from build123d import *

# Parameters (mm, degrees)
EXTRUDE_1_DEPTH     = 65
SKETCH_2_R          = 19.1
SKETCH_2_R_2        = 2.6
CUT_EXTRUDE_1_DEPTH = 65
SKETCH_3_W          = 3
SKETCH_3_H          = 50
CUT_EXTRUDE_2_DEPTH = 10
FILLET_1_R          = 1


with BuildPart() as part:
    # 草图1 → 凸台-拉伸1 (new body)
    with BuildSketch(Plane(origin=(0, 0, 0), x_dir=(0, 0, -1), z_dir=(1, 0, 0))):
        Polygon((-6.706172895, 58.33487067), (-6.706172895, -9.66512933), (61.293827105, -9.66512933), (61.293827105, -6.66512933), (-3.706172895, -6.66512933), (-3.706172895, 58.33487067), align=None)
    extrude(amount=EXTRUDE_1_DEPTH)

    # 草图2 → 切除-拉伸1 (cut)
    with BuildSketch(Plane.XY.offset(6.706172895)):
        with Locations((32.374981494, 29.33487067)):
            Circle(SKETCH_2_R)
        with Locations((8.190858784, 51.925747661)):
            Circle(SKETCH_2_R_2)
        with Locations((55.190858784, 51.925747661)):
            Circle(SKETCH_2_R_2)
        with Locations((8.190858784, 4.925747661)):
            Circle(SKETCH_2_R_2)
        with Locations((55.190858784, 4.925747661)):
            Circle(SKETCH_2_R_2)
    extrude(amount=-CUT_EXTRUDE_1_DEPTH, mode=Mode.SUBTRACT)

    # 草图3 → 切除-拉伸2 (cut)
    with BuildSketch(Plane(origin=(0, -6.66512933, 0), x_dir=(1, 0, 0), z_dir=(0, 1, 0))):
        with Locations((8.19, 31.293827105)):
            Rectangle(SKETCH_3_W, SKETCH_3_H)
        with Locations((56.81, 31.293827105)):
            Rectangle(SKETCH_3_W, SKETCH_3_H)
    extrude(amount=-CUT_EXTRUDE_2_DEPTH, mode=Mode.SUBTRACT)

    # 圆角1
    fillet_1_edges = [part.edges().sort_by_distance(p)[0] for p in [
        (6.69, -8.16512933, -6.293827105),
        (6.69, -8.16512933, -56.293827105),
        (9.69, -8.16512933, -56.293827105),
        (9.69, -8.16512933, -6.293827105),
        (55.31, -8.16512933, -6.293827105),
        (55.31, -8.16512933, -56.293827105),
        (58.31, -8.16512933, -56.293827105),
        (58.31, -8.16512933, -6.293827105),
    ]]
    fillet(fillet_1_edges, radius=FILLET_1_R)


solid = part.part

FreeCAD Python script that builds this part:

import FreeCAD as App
import Part
import Sketcher
from FreeCAD import Vector
Q = App.Units.Quantity


def edges_at(feature, points):
    """Names of the edges that pass closest to the given points."""
    edges = feature.Shape.Edges
    near = lambda p: min(range(len(edges)), key=lambda i: edges[i].distToShape(Part.Vertex(*p))[0])
    return sorted({f"Edge{near(p) + 1}" for p in points})

doc = App.newDocument("Part")
body = doc.addObject("PartDesign::Body", "Body")

sketch1 = body.newObject("Sketcher::SketchObject", "Sketch")
sketch1.AttachmentSupport = (doc.getObject("YZ_Plane"), [""])
sketch1.MapMode = "FlatFace"
sketch1.addGeometry(Part.LineSegment(Vector(58.3, 6.7, 0), Vector(-9.7, 6.7, 0)), False)
sketch1.addGeometry(Part.LineSegment(Vector(-9.7, 6.7, 0), Vector(-9.7, -61.3, 0)), False)
sketch1.addGeometry(Part.LineSegment(Vector(-9.7, -61.3, 0), Vector(-6.7, -61.3, 0)), False)
sketch1.addGeometry(Part.LineSegment(Vector(-6.7, -61.3, 0), Vector(-6.7, 3.7, 0)), False)
sketch1.addGeometry(Part.LineSegment(Vector(-6.7, 3.7, 0), Vector(58.3, 3.7, 0)), False)
sketch1.addGeometry(Part.LineSegment(Vector(58.3, 3.7, 0), Vector(58.3, 6.7, 0)), False)
sketch1.addConstraint(Sketcher.Constraint("Coincident", 0, 2, 1, 1))
sketch1.addConstraint(Sketcher.Constraint("Coincident", 1, 2, 2, 1))
sketch1.addConstraint(Sketcher.Constraint("Coincident", 2, 2, 3, 1))
sketch1.addConstraint(Sketcher.Constraint("Coincident", 3, 2, 4, 1))
sketch1.addConstraint(Sketcher.Constraint("Coincident", 4, 2, 5, 1))
sketch1.addConstraint(Sketcher.Constraint("Coincident", 5, 2, 0, 1))
sketch1.addConstraint(Sketcher.Constraint("Horizontal", 0))
sketch1.addConstraint(Sketcher.Constraint("Vertical", 1))
sketch1.addConstraint(Sketcher.Constraint("Horizontal", 2))
sketch1.addConstraint(Sketcher.Constraint("Vertical", 3))
sketch1.addConstraint(Sketcher.Constraint("Horizontal", 4))
sketch1.addConstraint(Sketcher.Constraint("Vertical", 5))
sketch1.addConstraint(Sketcher.Constraint("Equal", 0, 1))
sketch1.addConstraint(Sketcher.Constraint("Equal", 4, 3))
sketch1.addConstraint(Sketcher.Constraint("DistanceX", 0, 2, 0, 1, Q("68 mm")))
sketch1.addConstraint(Sketcher.Constraint("DistanceX", 2, 1, 2, 2, Q("3 mm")))
sketch1.addConstraint(Sketcher.Constraint("DistanceX", 0, 2, -1, 1, Q("9.665129 mm")))
sketch1.addConstraint(Sketcher.Constraint("DistanceY", -1, 1, 0, 2, Q("6.706173 mm")))
pad1 = body.newObject("PartDesign::Pad", "Pad")
pad1.Profile = sketch1
pad1.Length = 65

sketch2 = body.newObject("Sketcher::SketchObject", "Sketch001")
sketch2.AttachmentSupport = (doc.getObject("XY_Plane"), [""])
sketch2.MapMode = "FlatFace"
sketch2.AttachmentOffset = App.Placement(Vector(0, 0, 6.706173), App.Rotation())
sketch2.addGeometry(Part.Circle(Vector(32.4, 29.3, 0), Vector(0, 0, 1), 19.1), False)
sketch2.addGeometry(Part.Circle(Vector(8.2, 51.9, 0), Vector(0, 0, 1), 2.6), False)
sketch2.addGeometry(Part.Circle(Vector(55.2, 51.9, 0), Vector(0, 0, 1), 2.6), False)
sketch2.addGeometry(Part.Circle(Vector(8.2, 4.9, 0), Vector(0, 0, 1), 2.6), False)
sketch2.addGeometry(Part.Circle(Vector(55.2, 4.9, 0), Vector(0, 0, 1), 2.6), False)
sketch2.addConstraint(Sketcher.Constraint("Equal", 1, 2))
sketch2.addConstraint(Sketcher.Constraint("Equal", 2, 3))
sketch2.addConstraint(Sketcher.Constraint("Equal", 3, 4))
sketch2.addConstraint(Sketcher.Constraint("Horizontal", 1, 3, 2, 3))
sketch2.addConstraint(Sketcher.Constraint("Horizontal", 3, 3, 4, 3))
sketch2.addConstraint(Sketcher.Constraint("Vertical", 1, 3, 3, 3))
sketch2.addConstraint(Sketcher.Constraint("Vertical", 2, 3, 4, 3))
sketch2.addConstraint(Sketcher.Constraint("Diameter", 0, Q("38.2 mm")))
sketch2.addConstraint(Sketcher.Constraint("Diameter", 1, Q("5.2 mm")))
sketch2.addConstraint(Sketcher.Constraint("DistanceX", 1, 3, 2, 3, Q("47 mm")))
sketch2.addConstraint(Sketcher.Constraint("DistanceY", 3, 3, 1, 3, Q("47 mm")))
sketch2.addConstraint(Sketcher.Constraint("DistanceX", -1, 1, 0, 3, Q("32.374981 mm")))
sketch2.addConstraint(Sketcher.Constraint("DistanceY", -1, 1, 0, 3, Q("29.334871 mm")))
sketch2.addConstraint(Sketcher.Constraint("DistanceX", -1, 1, 1, 3, Q("8.190859 mm")))
sketch2.addConstraint(Sketcher.Constraint("DistanceY", -1, 1, 1, 3, Q("51.925748 mm")))
pocket1 = body.newObject("PartDesign::Pocket", "Pocket")
pocket1.Profile = sketch2
pocket1.Length = 65

sketch3 = body.newObject("Sketcher::SketchObject", "Sketch002")
sketch3.AttachmentSupport = (doc.getObject("XZ_Plane"), [""])
sketch3.MapMode = "FlatFace"
sketch3.AttachmentOffset = App.Placement(Vector(0, 0, 6.665129), App.Rotation())
sketch3.addGeometry(Part.LineSegment(Vector(6.7, -56.3, 0), Vector(6.7, -6.3, 0)), False)
sketch3.addGeometry(Part.LineSegment(Vector(6.7, -6.3, 0), Vector(9.7, -6.3, 0)), False)
sketch3.addGeometry(Part.LineSegment(Vector(9.7, -6.3, 0), Vector(9.7, -56.3, 0)), False)
sketch3.addGeometry(Part.LineSegment(Vector(9.7, -56.3, 0), Vector(6.7, -56.3, 0)), False)
sketch3.addGeometry(Part.LineSegment(Vector(55.3, -56.3, 0), Vector(55.3, -6.3, 0)), False)
sketch3.addGeometry(Part.LineSegment(Vector(55.3, -6.3, 0), Vector(58.3, -6.3, 0)), False)
sketch3.addGeometry(Part.LineSegment(Vector(58.3, -6.3, 0), Vector(58.3, -56.3, 0)), False)
sketch3.addGeometry(Part.LineSegment(Vector(58.3, -56.3, 0), Vector(55.3, -56.3, 0)), False)
sketch3.addConstraint(Sketcher.Constraint("Coincident", 0, 2, 1, 1))
sketch3.addConstraint(Sketcher.Constraint("Coincident", 1, 2, 2, 1))
sketch3.addConstraint(Sketcher.Constraint("Coincident", 2, 2, 3, 1))
sketch3.addConstraint(Sketcher.Constraint("Coincident", 3, 2, 0, 1))
sketch3.addConstraint(Sketcher.Constraint("Coincident", 4, 2, 5, 1))
sketch3.addConstraint(Sketcher.Constraint("Coincident", 5, 2, 6, 1))
sketch3.addConstraint(Sketcher.Constraint("Coincident", 6, 2, 7, 1))
sketch3.addConstraint(Sketcher.Constraint("Coincident", 7, 2, 4, 1))
sketch3.addConstraint(Sketcher.Constraint("Vertical", 0))
sketch3.addConstraint(Sketcher.Constraint("Horizontal", 1))
sketch3.addConstraint(Sketcher.Constraint("Vertical", 2))
sketch3.addConstraint(Sketcher.Constraint("Horizontal", 3))
sketch3.addConstraint(Sketcher.Constraint("Vertical", 4))
sketch3.addConstraint(Sketcher.Constraint("Horizontal", 5))
sketch3.addConstraint(Sketcher.Constraint("Vertical", 6))
sketch3.addConstraint(Sketcher.Constraint("Horizontal", 7))
sketch3.addConstraint(Sketcher.Constraint("Horizontal", 1, 2, 4, 2))
sketch3.addConstraint(Sketcher.Constraint("Horizontal", 3, 2, 6, 2))
sketch3.addConstraint(Sketcher.Constraint("Equal", 3, 5))
sketch3.addConstraint(Sketcher.Constraint("DistanceX", 1, 1, 1, 2, Q("3 mm")))
sketch3.addConstraint(Sketcher.Constraint("DistanceY", 0, 1, 0, 2, Q("50 mm")))
sketch3.addConstraint(Sketcher.Constraint("DistanceX", -1, 1, 0, 2, Q("6.69 mm")))
sketch3.addConstraint(Sketcher.Constraint("DistanceX", -1, 1, 4, 2, Q("55.31 mm")))
sketch3.addConstraint(Sketcher.Constraint("DistanceY", 0, 2, -1, 1, Q("6.293827 mm")))
pocket2 = body.newObject("PartDesign::Pocket", "Pocket001")
pocket2.Profile = sketch3
pocket2.Length = 10
pocket2.Reversed = True
doc.recompute()

fillet = body.newObject("PartDesign::Fillet", "Fillet")
fillet.Base = (pocket2, edges_at(pocket2, [
    (6.69, -8.165, -6.294),
    (6.69, -8.165, -56.294),
    (9.69, -8.165, -56.294),
    (9.69, -8.165, -6.294),
    (55.31, -8.165, -6.294),
    (55.31, -8.165, -56.294),
    (58.31, -8.165, -56.294),
    (58.31, -8.165, -6.294),
]))
fillet.Radius = 1

doc.recompute()
